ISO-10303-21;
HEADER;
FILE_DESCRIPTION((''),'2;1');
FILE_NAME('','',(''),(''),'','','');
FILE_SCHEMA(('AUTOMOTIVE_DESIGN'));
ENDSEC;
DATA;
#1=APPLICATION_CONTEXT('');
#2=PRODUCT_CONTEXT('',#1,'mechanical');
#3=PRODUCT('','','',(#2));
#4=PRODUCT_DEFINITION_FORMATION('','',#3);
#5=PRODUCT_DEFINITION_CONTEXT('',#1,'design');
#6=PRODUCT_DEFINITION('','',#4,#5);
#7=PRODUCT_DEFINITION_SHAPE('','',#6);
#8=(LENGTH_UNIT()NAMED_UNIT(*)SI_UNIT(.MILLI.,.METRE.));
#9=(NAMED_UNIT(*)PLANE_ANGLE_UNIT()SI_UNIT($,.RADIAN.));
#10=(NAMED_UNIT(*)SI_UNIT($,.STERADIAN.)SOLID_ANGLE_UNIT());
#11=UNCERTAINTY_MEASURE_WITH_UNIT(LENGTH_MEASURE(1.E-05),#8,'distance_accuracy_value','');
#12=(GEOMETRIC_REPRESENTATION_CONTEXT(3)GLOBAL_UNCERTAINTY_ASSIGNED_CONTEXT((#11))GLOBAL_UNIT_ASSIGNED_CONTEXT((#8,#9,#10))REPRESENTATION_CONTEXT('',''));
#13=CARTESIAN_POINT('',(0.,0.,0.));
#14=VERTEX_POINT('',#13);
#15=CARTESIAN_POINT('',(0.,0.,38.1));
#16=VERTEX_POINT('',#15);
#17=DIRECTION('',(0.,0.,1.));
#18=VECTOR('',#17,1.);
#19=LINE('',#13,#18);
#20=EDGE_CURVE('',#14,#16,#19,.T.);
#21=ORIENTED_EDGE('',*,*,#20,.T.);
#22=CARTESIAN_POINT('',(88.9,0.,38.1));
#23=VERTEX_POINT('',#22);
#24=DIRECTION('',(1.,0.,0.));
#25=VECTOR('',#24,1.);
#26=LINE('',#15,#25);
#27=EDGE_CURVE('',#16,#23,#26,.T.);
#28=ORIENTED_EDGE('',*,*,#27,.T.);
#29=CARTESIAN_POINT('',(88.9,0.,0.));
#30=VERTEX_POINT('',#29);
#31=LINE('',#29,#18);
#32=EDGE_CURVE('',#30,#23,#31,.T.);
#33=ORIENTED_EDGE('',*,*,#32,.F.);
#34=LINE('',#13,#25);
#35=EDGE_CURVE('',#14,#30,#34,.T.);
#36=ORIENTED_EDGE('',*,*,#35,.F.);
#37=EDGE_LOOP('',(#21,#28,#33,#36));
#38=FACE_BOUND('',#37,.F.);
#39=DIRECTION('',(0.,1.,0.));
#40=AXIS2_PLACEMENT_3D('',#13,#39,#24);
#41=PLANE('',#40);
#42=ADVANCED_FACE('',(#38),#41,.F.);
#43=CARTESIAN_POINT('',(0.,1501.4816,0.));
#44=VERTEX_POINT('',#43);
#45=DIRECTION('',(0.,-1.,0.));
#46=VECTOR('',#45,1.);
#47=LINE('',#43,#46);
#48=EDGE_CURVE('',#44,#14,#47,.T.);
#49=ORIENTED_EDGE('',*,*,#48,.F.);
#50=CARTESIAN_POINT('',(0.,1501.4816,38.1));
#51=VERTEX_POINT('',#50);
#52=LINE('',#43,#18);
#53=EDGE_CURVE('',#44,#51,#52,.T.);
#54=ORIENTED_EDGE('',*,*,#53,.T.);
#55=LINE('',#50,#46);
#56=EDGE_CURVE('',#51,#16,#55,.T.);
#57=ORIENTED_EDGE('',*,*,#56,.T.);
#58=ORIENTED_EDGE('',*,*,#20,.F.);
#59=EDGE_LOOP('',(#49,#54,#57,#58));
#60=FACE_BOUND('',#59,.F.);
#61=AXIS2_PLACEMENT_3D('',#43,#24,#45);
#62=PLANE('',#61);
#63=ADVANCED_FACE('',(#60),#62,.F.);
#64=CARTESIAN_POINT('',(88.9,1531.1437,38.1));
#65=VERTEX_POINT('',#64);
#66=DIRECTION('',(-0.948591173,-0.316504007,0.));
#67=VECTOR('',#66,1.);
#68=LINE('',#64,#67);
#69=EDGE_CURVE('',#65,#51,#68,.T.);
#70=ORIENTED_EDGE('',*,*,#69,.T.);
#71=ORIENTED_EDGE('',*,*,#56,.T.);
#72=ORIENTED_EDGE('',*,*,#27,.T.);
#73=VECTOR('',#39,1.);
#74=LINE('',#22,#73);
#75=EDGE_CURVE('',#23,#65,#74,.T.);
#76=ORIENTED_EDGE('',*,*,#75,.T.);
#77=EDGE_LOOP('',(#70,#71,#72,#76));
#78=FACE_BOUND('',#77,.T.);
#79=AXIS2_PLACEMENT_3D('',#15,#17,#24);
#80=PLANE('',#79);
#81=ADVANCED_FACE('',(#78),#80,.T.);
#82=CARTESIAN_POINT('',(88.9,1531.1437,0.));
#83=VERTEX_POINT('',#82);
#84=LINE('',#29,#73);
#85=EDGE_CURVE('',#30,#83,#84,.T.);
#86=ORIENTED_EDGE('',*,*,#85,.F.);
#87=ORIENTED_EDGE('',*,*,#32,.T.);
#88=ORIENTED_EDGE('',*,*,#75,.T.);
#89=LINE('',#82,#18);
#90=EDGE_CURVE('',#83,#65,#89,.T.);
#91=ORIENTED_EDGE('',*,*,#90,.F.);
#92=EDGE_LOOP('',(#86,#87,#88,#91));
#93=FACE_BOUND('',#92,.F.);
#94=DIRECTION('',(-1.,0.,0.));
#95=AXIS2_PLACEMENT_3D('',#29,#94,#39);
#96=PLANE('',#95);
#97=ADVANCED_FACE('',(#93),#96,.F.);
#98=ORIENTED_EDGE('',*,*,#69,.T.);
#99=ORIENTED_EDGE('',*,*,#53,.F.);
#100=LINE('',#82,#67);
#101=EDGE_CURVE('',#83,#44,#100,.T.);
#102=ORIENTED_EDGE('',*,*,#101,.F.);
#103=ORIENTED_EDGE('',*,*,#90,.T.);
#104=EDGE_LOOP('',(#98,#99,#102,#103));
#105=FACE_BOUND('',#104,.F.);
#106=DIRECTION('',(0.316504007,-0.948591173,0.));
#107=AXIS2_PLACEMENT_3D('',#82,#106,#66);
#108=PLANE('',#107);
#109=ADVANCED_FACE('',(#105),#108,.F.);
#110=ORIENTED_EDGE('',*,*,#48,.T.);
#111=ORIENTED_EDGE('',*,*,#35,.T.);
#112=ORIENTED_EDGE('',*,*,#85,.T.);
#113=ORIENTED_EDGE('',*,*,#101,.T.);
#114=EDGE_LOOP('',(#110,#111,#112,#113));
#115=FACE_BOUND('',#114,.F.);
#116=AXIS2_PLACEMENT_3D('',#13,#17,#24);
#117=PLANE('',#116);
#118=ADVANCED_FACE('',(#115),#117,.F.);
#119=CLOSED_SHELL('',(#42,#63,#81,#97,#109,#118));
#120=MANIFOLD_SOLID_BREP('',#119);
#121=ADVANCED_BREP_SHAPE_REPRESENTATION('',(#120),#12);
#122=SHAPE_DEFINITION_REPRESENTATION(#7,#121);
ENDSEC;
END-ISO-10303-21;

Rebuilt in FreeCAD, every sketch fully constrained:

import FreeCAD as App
import Part
import Sketcher

V = App.Vector
Q = App.Units.Quantity


def add_polygon(sketch, points):
    """Adds a closed chain of lines whose ends are joined by coincident constraints."""
    first, n = sketch.GeometryCount, len(points)
    for a, b in zip(points, points[1:] + points[:1]):
        sketch.addGeometry(Part.LineSegment(App.Vector(*a, 0), App.Vector(*b, 0)), False)
    for i in range(n):
        sketch.addConstraint(Sketcher.Constraint("Coincident", first + i, 2, first + (i + 1) % n, 1))

doc = App.newDocument("Part")
body = doc.addObject("PartDesign::Body", "Body")

# Sketch on XY plane
sketch1 = body.newObject("Sketcher::SketchObject", "Sketch")
sketch1.AttachmentSupport = (doc.getObject("XY_Plane"), [""])
sketch1.MapMode = "FlatFace"
add_polygon(sketch1, [(0, 1501), (0, 0), (89, 0), (89, 1531)])  # lines 0-3
sketch1.addConstraint([
    Sketcher.Constraint("Vertical", 0),
    Sketcher.Constraint("Horizontal", 1),
    Sketcher.Constraint("Vertical", 2),
    Sketcher.Constraint("Coincident", 0, 2, -1, 1),
    Sketcher.Constraint("DistanceX", 1, 1, 1, 2, Q("3.5 in")),
    Sketcher.Constraint("DistanceY", 2, 1, 2, 2, Q("60.281248 in")),
    Sketcher.Constraint("DistanceY", 0, 2, 0, 1, 1501.4816),
])
pad1 = body.newObject("PartDesign::Pad", "Pad")
pad1.Profile = sketch1
pad1.Length = Q("1.5 in")

doc.recompute()
